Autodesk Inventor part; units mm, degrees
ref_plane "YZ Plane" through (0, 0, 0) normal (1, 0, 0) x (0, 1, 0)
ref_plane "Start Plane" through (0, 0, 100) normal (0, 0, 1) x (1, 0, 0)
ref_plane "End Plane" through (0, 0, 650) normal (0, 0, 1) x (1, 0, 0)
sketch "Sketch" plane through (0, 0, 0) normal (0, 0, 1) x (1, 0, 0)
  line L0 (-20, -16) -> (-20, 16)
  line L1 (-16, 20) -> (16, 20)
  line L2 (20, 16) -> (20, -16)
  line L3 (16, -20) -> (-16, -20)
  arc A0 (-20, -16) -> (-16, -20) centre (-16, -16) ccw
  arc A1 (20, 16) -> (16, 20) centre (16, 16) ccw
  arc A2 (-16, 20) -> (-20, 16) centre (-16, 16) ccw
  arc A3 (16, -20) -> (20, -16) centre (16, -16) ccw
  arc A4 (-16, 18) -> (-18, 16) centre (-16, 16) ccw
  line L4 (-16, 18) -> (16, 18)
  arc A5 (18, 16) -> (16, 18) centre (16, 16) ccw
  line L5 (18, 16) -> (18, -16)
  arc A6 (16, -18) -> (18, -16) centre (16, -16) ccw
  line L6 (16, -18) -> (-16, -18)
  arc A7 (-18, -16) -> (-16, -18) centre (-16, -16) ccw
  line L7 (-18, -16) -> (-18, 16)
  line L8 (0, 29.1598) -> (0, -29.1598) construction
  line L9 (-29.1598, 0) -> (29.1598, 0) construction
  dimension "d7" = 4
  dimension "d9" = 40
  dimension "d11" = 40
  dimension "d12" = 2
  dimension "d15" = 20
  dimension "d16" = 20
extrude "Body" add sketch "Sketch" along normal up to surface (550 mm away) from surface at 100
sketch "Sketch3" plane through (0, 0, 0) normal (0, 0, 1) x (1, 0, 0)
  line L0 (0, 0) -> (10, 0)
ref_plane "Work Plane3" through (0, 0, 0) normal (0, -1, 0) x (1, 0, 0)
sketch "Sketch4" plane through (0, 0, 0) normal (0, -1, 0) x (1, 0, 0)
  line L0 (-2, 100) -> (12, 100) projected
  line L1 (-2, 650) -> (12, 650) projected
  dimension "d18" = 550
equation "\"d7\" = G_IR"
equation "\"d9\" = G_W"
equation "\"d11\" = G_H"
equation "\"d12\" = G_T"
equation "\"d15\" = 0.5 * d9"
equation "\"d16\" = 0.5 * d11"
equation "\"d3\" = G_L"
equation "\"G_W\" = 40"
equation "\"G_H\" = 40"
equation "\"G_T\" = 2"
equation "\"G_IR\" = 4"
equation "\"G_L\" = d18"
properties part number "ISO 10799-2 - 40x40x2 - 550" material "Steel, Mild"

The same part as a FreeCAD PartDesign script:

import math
import FreeCAD as App
import Part
import Sketcher

doc = App.newDocument("Part")
body = doc.addObject("PartDesign::Body", "Body")

# Sketch on XY plane
sketch1 = body.newObject("Sketcher::SketchObject", "Sketch")
sketch1.AttachmentSupport = (doc.getObject("XY_Plane"), [""])
sketch1.MapMode = "FlatFace"
sketch1.AttachmentOffset = App.Placement(App.Vector(0, 0, 100), App.Rotation())
sketch1.addGeometry([
    Part.LineSegment(App.Vector(-20, 16, 0), App.Vector(-20, -16, 0)),  # 0
    Part.ArcOfCircle(Part.Circle(App.Vector(-16, -16, 0), App.Vector(0, 0, 1), 4), math.radians(180), math.radians(270)),  # 1
    Part.LineSegment(App.Vector(-16, -20, 0), App.Vector(16, -20, 0)),  # 2
    Part.ArcOfCircle(Part.Circle(App.Vector(16, -16, 0), App.Vector(0, 0, 1), 4), math.radians(-90), math.radians(0)),  # 3
    Part.LineSegment(App.Vector(20, -16, 0), App.Vector(20, 16, 0)),  # 4
    Part.ArcOfCircle(Part.Circle(App.Vector(16, 16, 0), App.Vector(0, 0, 1), 4), math.radians(0), math.radians(90)),  # 5
    Part.LineSegment(App.Vector(16, 20, 0), App.Vector(-16, 20, 0)),  # 6
    Part.ArcOfCircle(Part.Circle(App.Vector(-16, 16, 0), App.Vector(0, 0, 1), 4), math.radians(90), math.radians(180)),  # 7
    Part.ArcOfCircle(Part.Circle(App.Vector(-16, 16, 0), App.Vector(0, 0, 1), 2), math.radians(90), math.radians(180)),  # 8
    Part.LineSegment(App.Vector(-16, 18, 0), App.Vector(16, 18, 0)),  # 9
    Part.ArcOfCircle(Part.Circle(App.Vector(16, 16, 0), App.Vector(0, 0, 1), 2), math.radians(0), math.radians(90)),  # 10
    Part.LineSegment(App.Vector(18, 16, 0), App.Vector(18, -16, 0)),  # 11
    Part.ArcOfCircle(Part.Circle(App.Vector(16, -16, 0), App.Vector(0, 0, 1), 2), math.radians(-90), math.radians(0)),  # 12
    Part.LineSegment(App.Vector(16, -18, 0), App.Vector(-16, -18, 0)),  # 13
    Part.ArcOfCircle(Part.Circle(App.Vector(-16, -16, 0), App.Vector(0, 0, 1), 2), math.radians(180), math.radians(270)),  # 14
    Part.LineSegment(App.Vector(-18, -16, 0), App.Vector(-18, 16, 0)),  # 15
], False)
sketch1.addConstraint([
    Sketcher.Constraint("Tangent", 0, 2, 1, 1),
    Sketcher.Constraint("Tangent", 1, 2, 2, 1),
    Sketcher.Constraint("Tangent", 2, 2, 3, 1),
    Sketcher.Constraint("Tangent", 3, 2, 4, 1),
    Sketcher.Constraint("Tangent", 4, 2, 5, 1),
    Sketcher.Constraint("Tangent", 5, 2, 6, 1),
    Sketcher.Constraint("Tangent", 6, 2, 7, 1),
    Sketcher.Constraint("Tangent", 7, 2, 0, 1),
    Sketcher.Constraint("Tangent", 8, 1, 9, 1),
    Sketcher.Constraint("Tangent", 9, 2, 10, 2),
    Sketcher.Constraint("Tangent", 10, 1, 11, 1),
    Sketcher.Constraint("Tangent", 11, 2, 12, 2),
    Sketcher.Constraint("Tangent", 12, 1, 13, 1),
    Sketcher.Constraint("Tangent", 13, 2, 14, 2),
    Sketcher.Constraint("Tangent", 14, 1, 15, 1),
    Sketcher.Constraint("Tangent", 15, 2, 8, 2),
    Sketcher.Constraint("Vertical", 0),
    Sketcher.Constraint("Horizontal", 2),
    Sketcher.Constraint("Vertical", 4),
    Sketcher.Constraint("Horizontal", 6),
    Sketcher.Constraint("Horizontal", 9),
    Sketcher.Constraint("Vertical", 11),
    Sketcher.Constraint("Horizontal", 13),
    Sketcher.Constraint("Vertical", 15),
    Sketcher.Constraint("Coincident", 8, 3, 7, 3),
    Sketcher.Constraint("Coincident", 10, 3, 5, 3),
    Sketcher.Constraint("Coincident", 12, 3, 3, 3),
    Sketcher.Constraint("Equal", 1, 3),
    Sketcher.Constraint("Equal", 3, 5),
    Sketcher.Constraint("Equal", 5, 7),
    Sketcher.Constraint("Equal", 12, 14),
    Sketcher.Constraint("Symmetric", 1, 3, 5, 3, -1, 1),
    Sketcher.Constraint("Equal", 13, 0),
    Sketcher.Constraint("Radius", 1, 4.0),
    Sketcher.Constraint("Radius", 8, 2.0),
    Sketcher.Constraint("DistanceX", 0, 2, -1, 1, 20.0),
])
pad1 = body.newObject("PartDesign::Pad", "Pad")
pad1.Profile = sketch1
pad1.Length = 550

doc.recompute()
